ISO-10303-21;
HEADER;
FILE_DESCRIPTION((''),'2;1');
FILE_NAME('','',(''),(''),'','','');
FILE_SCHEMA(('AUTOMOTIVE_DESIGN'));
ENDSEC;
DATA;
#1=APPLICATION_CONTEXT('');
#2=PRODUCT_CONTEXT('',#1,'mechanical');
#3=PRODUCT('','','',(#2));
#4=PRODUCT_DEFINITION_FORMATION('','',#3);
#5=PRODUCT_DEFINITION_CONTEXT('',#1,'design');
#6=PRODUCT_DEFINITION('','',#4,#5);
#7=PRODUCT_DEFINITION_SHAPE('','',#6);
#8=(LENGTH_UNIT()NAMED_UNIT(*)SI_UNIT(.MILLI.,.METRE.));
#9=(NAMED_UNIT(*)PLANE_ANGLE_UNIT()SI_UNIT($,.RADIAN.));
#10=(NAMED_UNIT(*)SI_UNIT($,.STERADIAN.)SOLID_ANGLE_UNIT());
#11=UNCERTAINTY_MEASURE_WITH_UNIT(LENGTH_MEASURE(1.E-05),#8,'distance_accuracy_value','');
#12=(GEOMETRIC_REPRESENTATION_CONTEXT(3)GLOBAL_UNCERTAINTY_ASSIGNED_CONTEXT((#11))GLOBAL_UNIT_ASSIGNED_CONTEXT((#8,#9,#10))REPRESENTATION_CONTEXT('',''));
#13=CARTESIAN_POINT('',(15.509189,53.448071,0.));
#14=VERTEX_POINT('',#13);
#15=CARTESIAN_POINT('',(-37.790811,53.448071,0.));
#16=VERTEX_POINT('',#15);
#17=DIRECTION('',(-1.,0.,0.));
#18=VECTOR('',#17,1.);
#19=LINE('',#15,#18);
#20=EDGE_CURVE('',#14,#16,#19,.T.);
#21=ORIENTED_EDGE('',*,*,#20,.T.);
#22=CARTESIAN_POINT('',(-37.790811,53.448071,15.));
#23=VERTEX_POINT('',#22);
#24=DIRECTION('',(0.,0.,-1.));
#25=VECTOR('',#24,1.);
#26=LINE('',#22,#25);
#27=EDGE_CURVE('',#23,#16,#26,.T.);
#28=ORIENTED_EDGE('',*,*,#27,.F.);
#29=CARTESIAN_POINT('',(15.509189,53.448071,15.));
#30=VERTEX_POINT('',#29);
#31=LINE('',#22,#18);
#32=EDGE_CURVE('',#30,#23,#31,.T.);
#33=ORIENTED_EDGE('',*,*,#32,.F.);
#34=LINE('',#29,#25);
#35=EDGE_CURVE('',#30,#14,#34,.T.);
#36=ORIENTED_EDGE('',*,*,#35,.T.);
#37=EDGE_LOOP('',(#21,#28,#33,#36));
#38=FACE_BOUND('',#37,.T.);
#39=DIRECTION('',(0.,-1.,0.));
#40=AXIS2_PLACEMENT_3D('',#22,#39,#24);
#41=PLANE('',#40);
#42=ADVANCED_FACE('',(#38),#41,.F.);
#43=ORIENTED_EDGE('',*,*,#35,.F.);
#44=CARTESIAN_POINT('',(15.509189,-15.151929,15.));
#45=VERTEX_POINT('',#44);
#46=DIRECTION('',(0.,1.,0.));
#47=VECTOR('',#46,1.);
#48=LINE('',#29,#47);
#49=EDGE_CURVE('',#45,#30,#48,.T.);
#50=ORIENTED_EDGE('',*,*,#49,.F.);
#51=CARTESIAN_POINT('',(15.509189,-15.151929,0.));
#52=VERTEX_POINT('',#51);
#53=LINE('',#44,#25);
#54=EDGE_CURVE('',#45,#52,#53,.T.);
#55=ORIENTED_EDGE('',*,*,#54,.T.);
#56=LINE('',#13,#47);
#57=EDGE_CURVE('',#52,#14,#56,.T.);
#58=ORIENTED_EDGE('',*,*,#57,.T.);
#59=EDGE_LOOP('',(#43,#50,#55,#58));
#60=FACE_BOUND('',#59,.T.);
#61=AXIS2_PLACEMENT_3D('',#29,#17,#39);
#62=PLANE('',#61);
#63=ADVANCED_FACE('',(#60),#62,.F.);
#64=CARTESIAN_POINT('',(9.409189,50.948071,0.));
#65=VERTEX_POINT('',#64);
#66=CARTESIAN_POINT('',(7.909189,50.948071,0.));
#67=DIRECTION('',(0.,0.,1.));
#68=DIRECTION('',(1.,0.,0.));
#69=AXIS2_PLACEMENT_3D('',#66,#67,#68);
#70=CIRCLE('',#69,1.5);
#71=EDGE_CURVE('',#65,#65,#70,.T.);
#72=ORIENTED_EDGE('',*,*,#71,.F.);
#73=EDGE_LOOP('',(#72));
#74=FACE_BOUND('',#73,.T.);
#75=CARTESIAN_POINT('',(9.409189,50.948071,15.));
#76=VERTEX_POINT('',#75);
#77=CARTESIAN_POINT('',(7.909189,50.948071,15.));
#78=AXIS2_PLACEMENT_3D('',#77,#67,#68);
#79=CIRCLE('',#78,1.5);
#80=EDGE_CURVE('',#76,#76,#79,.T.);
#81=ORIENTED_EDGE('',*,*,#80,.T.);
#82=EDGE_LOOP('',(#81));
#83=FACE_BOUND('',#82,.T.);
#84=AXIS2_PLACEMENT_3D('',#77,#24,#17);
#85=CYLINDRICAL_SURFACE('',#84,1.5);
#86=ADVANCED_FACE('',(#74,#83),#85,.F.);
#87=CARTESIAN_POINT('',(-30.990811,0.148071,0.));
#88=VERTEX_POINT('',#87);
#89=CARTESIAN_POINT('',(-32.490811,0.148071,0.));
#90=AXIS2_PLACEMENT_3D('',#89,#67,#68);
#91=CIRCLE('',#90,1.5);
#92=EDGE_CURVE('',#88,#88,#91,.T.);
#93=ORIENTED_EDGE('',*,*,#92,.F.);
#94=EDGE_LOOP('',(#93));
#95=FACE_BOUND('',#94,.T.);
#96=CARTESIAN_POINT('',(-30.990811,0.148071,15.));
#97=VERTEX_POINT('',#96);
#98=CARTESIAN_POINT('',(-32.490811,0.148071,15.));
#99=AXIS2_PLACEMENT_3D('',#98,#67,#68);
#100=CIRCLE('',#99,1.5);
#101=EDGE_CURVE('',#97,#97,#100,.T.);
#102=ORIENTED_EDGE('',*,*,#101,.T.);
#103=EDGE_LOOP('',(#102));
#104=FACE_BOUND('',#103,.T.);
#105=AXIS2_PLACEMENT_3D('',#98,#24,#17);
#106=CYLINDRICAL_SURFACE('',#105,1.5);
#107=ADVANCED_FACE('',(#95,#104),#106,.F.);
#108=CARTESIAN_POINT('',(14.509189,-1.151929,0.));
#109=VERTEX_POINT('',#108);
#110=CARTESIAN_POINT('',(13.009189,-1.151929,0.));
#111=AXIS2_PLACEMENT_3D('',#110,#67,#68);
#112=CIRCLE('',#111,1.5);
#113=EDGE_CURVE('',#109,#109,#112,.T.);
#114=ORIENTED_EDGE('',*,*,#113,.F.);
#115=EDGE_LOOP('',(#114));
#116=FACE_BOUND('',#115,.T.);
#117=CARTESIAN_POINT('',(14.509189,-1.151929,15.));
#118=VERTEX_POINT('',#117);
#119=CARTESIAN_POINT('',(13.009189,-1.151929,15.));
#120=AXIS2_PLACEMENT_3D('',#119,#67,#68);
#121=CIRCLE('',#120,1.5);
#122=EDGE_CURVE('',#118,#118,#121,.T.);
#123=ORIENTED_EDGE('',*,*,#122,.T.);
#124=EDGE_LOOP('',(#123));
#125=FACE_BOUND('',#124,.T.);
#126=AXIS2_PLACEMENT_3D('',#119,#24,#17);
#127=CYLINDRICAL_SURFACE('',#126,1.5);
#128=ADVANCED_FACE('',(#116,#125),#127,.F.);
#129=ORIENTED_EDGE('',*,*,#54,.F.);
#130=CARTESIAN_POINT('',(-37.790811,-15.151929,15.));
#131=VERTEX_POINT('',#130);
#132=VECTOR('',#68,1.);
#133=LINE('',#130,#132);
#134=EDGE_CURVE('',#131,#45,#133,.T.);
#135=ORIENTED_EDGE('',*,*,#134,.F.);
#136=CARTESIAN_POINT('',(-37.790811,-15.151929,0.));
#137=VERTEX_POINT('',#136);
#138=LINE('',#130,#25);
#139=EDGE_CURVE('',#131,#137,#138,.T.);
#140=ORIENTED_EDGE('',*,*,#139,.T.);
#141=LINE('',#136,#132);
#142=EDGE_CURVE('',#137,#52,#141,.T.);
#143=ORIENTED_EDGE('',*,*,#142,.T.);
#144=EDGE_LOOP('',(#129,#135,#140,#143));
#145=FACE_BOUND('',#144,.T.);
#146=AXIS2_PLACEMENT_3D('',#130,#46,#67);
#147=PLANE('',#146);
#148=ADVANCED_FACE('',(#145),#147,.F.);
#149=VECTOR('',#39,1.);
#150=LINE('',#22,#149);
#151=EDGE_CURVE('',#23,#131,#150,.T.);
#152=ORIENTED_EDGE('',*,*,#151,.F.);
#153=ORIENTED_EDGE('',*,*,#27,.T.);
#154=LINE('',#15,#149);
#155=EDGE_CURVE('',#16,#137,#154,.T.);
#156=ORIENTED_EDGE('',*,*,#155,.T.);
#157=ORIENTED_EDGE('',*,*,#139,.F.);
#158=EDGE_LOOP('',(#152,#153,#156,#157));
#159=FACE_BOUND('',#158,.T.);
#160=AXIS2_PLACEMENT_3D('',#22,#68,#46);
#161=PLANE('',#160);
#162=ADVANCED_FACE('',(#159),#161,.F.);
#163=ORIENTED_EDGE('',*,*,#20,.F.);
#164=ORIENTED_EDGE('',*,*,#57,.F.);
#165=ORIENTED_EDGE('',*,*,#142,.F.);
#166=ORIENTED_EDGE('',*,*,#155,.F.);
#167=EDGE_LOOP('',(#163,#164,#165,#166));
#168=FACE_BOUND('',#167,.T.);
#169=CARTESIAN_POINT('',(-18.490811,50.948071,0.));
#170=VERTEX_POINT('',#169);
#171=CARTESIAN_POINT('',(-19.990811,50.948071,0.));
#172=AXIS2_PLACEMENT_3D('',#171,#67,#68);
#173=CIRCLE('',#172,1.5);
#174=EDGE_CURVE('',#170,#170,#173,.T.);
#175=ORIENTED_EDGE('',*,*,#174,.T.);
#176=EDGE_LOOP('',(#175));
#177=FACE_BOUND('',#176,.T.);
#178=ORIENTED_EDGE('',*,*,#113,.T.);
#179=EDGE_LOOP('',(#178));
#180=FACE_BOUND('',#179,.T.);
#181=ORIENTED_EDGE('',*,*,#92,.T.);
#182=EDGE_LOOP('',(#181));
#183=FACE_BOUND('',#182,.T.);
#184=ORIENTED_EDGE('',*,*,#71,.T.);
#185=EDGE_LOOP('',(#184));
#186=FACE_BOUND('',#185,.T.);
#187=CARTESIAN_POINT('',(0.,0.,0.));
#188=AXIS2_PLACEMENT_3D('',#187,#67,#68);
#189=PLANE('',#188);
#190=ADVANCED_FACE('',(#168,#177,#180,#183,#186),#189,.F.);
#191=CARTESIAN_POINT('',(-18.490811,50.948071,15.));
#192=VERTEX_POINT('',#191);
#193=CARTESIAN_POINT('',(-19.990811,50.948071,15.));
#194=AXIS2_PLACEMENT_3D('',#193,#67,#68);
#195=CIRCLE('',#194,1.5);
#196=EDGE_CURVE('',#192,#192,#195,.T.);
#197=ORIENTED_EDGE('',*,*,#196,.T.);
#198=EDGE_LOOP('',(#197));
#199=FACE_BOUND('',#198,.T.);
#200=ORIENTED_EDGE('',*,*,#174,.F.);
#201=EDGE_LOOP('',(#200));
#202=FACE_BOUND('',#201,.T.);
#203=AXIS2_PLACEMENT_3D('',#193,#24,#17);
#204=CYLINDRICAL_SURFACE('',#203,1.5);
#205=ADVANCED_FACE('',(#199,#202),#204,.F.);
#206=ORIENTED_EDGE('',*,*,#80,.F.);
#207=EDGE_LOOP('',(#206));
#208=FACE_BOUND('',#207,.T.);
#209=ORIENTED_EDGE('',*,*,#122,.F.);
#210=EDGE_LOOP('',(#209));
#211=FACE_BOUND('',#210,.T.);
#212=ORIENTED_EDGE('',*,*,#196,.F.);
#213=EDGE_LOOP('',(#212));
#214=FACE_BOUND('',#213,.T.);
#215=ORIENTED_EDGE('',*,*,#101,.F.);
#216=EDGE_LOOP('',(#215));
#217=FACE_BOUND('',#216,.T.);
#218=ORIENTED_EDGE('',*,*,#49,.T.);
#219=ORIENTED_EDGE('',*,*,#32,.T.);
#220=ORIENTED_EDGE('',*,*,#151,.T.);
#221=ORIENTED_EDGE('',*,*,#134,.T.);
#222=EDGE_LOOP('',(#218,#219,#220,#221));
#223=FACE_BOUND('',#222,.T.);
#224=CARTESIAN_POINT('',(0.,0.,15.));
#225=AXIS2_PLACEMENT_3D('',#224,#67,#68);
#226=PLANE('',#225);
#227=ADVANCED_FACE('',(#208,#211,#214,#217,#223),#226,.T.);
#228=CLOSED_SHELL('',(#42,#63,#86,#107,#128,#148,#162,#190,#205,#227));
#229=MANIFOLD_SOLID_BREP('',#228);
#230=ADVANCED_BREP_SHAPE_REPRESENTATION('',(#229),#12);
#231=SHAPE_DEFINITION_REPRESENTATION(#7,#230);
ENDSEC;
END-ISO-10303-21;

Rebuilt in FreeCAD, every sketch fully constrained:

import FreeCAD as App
import Part
import Sketcher
from FreeCAD import Vector
Q = App.Units.Quantity

doc = App.newDocument("Part")
params = doc.addObject("Spreadsheet::Sheet", "Params")
for row, (alias, value) in enumerate([
    ("sketch1_diameter", "3 mm"),
    ("sketch1_width", "53.3 mm"),
    ("sketch1_height", "68.6 mm"),
    ("pad1_length", "15 mm"),
], start=1):
    params.set(f"A{row}", alias)
    params.set(f"B{row}", "=" + value)
    params.setAlias(f"B{row}", alias)

body = doc.addObject("PartDesign::Body", "Body")

sketch1 = body.newObject("Sketcher::SketchObject", "Sketch")
sketch1.AttachmentSupport = (doc.getObject("XY_Plane"), [""])
sketch1.MapMode = "FlatFace"
sketch1.addGeometry(Part.LineSegment(Vector(-37.8, 53.4, 0), Vector(-37.8, -15.2, 0)), False)
sketch1.addGeometry(Part.LineSegment(Vector(-37.8, -15.2, 0), Vector(15.5, -15.2, 0)), False)
sketch1.addGeometry(Part.LineSegment(Vector(15.5, -15.2, 0), Vector(15.5, 53.4, 0)), False)
sketch1.addGeometry(Part.LineSegment(Vector(15.5, 53.4, 0), Vector(-37.8, 53.4, 0)), False)
sketch1.addGeometry(Part.Circle(Vector(-32.5, 0.1, 0), Vector(0, 0, 1), 1.5), False)
sketch1.addGeometry(Part.Circle(Vector(13, -1.2, 0), Vector(0, 0, 1), 1.5), False)
sketch1.addGeometry(Part.Circle(Vector(-20, 50.9, 0), Vector(0, 0, 1), 1.5), False)
sketch1.addGeometry(Part.Circle(Vector(7.9, 50.9, 0), Vector(0, 0, 1), 1.5), False)
sketch1.addConstraint(Sketcher.Constraint("Coincident", 0, 2, 1, 1))
sketch1.addConstraint(Sketcher.Constraint("Coincident", 1, 2, 2, 1))
sketch1.addConstraint(Sketcher.Constraint("Coincident", 2, 2, 3, 1))
sketch1.addConstraint(Sketcher.Constraint("Coincident", 3, 2, 0, 1))
sketch1.addConstraint(Sketcher.Constraint("Vertical", 0))
sketch1.addConstraint(Sketcher.Constraint("Horizontal", 1))
sketch1.addConstraint(Sketcher.Constraint("Vertical", 2))
sketch1.addConstraint(Sketcher.Constraint("Horizontal", 3))
sketch1.addConstraint(Sketcher.Constraint("Equal", 4, 5))
sketch1.addConstraint(Sketcher.Constraint("Equal", 5, 6))
sketch1.addConstraint(Sketcher.Constraint("Equal", 6, 7))
sketch1.addConstraint(Sketcher.Constraint("Horizontal", 6, 3, 7, 3))
sketch1.addConstraint(Sketcher.Constraint("Diameter", 4, Q("3 mm")))
sketch1.addConstraint(Sketcher.Constraint("DistanceX", 1, 1, 1, 2, Q("53.3 mm")))
sketch1.addConstraint(Sketcher.Constraint("DistanceY", 0, 2, 0, 1, Q("68.6 mm")))
sketch1.addConstraint(Sketcher.Constraint("DistanceX", 6, 3, 5, 3, Q("33 mm")))
sketch1.addConstraint(Sketcher.Constraint("DistanceY", 0, 2, 5, 3, Q("14 mm")))
sketch1.addConstraint(Sketcher.Constraint("DistanceX", 4, 3, 1, 2, Q("48 mm")))
sketch1.addConstraint(Sketcher.Constraint("DistanceX", 4, 3, 5, 3, Q("45.5 mm")))
sketch1.addConstraint(Sketcher.Constraint("DistanceY", 5, 3, 4, 3, Q("1.3 mm")))
sketch1.addConstraint(Sketcher.Constraint("DistanceY", 4, 3, 6, 3, Q("50.8 mm")))
sketch1.addConstraint(Sketcher.Constraint("DistanceX", 6, 3, 7, 3, Q("27.9 mm")))
sketch1.addConstraint(Sketcher.Constraint("DistanceX", 4, 3, -1, 1, Q("32.490811 mm")))
sketch1.addConstraint(Sketcher.Constraint("DistanceY", -1, 1, 4, 3, Q("0.148071 mm")))
sketch1.setExpression("Constraints[12]", "Params.sketch1_diameter")
sketch1.setExpression("Constraints[13]", "Params.sketch1_width")
sketch1.setExpression("Constraints[14]", "Params.sketch1_height")
pad1 = body.newObject("PartDesign::Pad", "Pad")
pad1.Profile = sketch1
pad1.setExpression("Length", "Params.pad1_length")

doc.recompute()
